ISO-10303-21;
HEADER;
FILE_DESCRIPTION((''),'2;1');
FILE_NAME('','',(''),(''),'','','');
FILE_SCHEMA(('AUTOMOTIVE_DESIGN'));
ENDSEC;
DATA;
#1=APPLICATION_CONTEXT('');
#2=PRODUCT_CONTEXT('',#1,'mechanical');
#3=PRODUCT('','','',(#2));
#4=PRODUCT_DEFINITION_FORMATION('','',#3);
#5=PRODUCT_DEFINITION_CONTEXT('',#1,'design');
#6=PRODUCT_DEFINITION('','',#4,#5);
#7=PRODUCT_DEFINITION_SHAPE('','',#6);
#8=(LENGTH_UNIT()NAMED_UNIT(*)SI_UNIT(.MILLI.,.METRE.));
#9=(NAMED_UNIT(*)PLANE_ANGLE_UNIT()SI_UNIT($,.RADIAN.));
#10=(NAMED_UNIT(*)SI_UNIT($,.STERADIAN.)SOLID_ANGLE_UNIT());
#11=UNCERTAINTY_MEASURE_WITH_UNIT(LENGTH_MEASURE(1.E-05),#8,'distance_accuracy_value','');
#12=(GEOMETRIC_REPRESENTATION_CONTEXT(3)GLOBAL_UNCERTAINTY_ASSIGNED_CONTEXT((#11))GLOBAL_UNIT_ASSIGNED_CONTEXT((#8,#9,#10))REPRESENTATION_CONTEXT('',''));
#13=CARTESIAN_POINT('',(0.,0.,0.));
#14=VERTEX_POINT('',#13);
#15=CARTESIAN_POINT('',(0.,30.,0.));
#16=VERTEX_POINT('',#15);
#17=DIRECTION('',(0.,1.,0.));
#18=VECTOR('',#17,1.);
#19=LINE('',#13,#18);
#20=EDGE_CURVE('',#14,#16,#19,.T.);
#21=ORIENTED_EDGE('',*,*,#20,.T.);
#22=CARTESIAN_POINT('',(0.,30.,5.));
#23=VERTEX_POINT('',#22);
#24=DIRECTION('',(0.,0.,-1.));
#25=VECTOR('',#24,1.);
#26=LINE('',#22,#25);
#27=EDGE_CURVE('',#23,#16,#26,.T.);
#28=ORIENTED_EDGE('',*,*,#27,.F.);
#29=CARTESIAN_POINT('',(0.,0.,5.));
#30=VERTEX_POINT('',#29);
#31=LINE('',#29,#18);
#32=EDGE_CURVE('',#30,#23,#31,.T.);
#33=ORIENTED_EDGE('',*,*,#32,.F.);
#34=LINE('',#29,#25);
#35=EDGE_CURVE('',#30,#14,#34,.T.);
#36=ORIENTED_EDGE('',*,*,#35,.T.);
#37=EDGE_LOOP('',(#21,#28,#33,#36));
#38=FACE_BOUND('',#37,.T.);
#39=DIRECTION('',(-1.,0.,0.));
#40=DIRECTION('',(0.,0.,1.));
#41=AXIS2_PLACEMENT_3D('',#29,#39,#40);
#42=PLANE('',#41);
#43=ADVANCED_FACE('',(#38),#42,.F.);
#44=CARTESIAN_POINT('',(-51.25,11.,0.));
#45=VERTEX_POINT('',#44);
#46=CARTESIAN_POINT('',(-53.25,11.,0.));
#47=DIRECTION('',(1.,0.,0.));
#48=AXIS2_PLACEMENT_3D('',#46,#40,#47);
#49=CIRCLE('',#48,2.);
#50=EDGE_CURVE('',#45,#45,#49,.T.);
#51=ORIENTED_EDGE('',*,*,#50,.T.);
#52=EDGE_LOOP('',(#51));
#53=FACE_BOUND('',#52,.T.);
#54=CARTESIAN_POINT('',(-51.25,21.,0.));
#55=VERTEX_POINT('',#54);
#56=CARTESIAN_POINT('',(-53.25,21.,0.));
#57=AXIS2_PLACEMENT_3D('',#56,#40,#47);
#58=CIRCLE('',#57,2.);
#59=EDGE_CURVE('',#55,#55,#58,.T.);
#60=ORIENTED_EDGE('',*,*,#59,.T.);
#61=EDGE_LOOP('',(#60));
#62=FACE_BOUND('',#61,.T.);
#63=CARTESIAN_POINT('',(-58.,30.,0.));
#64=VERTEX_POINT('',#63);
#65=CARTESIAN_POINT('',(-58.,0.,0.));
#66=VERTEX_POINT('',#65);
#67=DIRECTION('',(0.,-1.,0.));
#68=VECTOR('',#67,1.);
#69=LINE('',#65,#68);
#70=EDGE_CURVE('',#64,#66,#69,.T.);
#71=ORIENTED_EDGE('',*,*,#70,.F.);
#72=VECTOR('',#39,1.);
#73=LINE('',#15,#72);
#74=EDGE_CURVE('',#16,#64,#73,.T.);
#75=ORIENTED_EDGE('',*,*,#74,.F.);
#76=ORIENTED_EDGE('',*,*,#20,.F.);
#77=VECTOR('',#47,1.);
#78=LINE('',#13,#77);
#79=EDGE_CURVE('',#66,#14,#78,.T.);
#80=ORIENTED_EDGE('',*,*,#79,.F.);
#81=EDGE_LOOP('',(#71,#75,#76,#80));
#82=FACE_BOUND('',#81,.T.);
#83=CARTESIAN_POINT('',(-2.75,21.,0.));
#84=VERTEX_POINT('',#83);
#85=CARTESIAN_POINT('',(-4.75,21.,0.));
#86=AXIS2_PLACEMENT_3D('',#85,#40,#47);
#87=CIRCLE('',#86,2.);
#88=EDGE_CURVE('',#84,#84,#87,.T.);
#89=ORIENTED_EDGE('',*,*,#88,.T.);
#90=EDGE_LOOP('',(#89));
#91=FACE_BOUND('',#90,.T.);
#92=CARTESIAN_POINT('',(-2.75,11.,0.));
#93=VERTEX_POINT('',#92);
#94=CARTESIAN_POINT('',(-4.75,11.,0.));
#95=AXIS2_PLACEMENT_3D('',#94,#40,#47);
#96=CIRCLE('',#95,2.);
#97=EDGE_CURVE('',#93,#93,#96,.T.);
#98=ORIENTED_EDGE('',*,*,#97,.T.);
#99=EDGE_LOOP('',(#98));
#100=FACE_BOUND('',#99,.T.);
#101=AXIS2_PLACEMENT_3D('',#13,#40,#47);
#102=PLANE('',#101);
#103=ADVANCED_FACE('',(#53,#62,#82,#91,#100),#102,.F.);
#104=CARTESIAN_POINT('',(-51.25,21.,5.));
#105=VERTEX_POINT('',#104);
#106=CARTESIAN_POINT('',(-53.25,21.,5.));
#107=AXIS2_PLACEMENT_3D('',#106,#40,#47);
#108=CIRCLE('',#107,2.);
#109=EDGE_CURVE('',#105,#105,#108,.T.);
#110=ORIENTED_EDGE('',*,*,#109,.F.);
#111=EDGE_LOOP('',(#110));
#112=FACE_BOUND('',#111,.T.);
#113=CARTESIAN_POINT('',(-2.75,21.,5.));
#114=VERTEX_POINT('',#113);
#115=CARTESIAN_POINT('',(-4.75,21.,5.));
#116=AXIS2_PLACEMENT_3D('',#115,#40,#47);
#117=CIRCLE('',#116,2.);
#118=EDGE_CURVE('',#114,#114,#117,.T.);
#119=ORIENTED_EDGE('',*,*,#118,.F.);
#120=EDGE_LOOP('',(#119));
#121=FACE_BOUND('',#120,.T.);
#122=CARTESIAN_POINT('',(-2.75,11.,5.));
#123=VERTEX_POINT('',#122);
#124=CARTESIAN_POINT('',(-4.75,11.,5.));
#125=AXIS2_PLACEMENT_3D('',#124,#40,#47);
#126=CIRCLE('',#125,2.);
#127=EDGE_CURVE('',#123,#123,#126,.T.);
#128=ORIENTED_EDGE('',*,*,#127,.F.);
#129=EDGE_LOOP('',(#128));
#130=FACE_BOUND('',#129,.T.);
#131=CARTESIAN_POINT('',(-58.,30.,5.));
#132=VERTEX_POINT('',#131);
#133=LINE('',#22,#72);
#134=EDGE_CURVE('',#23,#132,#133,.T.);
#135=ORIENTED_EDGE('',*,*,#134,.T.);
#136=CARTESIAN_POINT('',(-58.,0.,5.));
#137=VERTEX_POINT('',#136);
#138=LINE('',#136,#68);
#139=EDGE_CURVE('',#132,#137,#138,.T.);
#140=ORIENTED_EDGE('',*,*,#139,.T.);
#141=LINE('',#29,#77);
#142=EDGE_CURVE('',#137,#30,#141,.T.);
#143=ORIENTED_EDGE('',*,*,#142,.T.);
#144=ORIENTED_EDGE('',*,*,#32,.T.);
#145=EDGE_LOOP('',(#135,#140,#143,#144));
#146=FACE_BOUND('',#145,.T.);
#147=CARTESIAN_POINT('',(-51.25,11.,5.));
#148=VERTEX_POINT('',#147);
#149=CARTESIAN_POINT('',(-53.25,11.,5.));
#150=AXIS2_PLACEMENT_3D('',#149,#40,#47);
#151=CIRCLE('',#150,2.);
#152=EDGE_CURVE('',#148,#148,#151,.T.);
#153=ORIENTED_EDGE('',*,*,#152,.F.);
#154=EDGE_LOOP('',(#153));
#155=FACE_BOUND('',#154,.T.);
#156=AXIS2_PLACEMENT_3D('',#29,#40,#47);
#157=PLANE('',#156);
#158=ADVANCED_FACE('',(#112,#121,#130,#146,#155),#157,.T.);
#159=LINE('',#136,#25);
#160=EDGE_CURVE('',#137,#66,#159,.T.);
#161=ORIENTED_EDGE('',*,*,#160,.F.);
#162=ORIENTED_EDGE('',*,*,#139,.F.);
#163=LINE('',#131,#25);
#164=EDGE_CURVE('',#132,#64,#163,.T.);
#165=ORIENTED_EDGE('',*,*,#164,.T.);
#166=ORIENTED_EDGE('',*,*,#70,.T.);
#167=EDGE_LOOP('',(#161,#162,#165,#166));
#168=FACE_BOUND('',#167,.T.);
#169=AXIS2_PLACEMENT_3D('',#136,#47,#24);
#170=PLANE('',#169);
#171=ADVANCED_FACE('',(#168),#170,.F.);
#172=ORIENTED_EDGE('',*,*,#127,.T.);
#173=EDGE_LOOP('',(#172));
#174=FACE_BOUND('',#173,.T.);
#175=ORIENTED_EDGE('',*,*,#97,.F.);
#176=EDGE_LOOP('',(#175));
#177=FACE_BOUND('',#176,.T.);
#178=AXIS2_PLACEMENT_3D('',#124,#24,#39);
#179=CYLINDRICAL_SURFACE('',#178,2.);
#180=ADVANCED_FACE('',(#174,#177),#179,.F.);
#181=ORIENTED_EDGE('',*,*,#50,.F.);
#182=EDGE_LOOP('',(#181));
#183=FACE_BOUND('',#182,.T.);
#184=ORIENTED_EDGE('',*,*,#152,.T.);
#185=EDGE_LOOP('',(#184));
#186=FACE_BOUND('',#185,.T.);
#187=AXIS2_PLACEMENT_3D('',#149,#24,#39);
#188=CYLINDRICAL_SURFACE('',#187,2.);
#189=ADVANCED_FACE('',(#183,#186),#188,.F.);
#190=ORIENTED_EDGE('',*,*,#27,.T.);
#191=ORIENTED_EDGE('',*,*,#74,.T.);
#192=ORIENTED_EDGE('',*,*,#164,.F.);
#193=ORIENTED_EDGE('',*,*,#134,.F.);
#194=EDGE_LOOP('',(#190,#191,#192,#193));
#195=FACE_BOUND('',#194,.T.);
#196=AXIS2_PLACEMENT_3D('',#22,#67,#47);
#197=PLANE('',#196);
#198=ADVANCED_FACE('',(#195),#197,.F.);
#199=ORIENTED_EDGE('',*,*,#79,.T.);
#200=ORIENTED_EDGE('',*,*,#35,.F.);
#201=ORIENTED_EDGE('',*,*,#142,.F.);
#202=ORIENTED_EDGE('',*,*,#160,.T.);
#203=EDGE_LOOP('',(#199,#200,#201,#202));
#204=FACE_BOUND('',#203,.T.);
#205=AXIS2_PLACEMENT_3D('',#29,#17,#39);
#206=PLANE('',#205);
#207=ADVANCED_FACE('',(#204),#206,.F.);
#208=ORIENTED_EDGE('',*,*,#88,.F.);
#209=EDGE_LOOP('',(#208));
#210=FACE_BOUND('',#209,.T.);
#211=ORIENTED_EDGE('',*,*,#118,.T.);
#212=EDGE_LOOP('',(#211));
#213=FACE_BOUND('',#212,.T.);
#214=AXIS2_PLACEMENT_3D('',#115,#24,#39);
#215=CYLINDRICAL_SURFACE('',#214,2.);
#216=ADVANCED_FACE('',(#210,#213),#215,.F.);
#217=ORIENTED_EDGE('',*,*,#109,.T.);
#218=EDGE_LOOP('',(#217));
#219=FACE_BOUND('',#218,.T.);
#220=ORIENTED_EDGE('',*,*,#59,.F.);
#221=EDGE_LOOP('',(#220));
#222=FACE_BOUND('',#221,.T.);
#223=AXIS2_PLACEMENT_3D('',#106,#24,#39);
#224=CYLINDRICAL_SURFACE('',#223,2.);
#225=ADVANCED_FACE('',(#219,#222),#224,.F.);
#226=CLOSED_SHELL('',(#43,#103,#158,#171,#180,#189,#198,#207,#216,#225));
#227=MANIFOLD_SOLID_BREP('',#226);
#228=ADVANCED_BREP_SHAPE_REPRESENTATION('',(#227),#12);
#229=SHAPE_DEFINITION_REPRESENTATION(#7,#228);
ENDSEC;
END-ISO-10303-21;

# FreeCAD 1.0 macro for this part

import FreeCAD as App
import Part
import Sketcher
from FreeCAD import Vector

doc = App.newDocument("Part")
body = doc.addObject("PartDesign::Body", "Body")

# Sketch on XY plane
sketch1 = doc.addObject("Sketcher::SketchObject", "Sketch")
body.addObject(sketch1)
sketch1.AttachmentSupport = (doc.XY_Plane, [""])
sketch1.MapMode = "FlatFace"
sketch1.addGeometry([
    Part.LineSegment(Vector(-58, 30, 0), Vector(-58, 0, 0)),  # 0
    Part.LineSegment(Vector(-58, 0, 0), Vector(0, 0, 0)),  # 1
    Part.LineSegment(Vector(0, 0, 0), Vector(0, 30, 0)),  # 2
    Part.LineSegment(Vector(0, 30, 0), Vector(-58, 30, 0)),  # 3
    Part.Circle(Vector(-53.2, 11, 0), Vector(0, 0, 1), 2),  # 4
    Part.Circle(Vector(-4.8, 11, 0), Vector(0, 0, 1), 2),  # 5
    Part.Circle(Vector(-53.2, 21, 0), Vector(0, 0, 1), 2),  # 6
    Part.Circle(Vector(-4.8, 21, 0), Vector(0, 0, 1), 2),  # 7
], False)
sketch1.addConstraint([
    Sketcher.Constraint("Coincident", 0, 2, 1, 1),
    Sketcher.Constraint("Coincident", 1, 2, 2, 1),
    Sketcher.Constraint("Coincident", 2, 2, 3, 1),
    Sketcher.Constraint("Coincident", 3, 2, 0, 1),
    Sketcher.Constraint("Vertical", 0),
    Sketcher.Constraint("Horizontal", 1),
    Sketcher.Constraint("Vertical", 2),
    Sketcher.Constraint("Horizontal", 3),
    Sketcher.Constraint("Coincident", 1, 2, -1, 1),
    Sketcher.Constraint("Equal", 4, 5),
    Sketcher.Constraint("Equal", 5, 6),
    Sketcher.Constraint("Equal", 6, 7),
    Sketcher.Constraint("Horizontal", 4, 3, 5, 3),
    Sketcher.Constraint("Horizontal", 6, 3, 7, 3),
    Sketcher.Constraint("Vertical", 4, 3, 6, 3),
    Sketcher.Constraint("Vertical", 5, 3, 7, 3),
    Sketcher.Constraint("Diameter", 4, 4.0),
    Sketcher.Constraint("DistanceX", 1, 1, 1, 2, 58.0),
    Sketcher.Constraint("DistanceY", 0, 2, 0, 1, 30.0),
    Sketcher.Constraint("DistanceY", -1, 1, 4, 3, 11.0),
    Sketcher.Constraint("DistanceY", -1, 1, 6, 3, 21.0),
    Sketcher.Constraint("DistanceX", 4, 3, 5, 3, 48.5),
    Sketcher.Constraint("DistanceX", 4, 3, -1, 1, 53.25),
])
pad1 = doc.addObject("PartDesign::Pad", "Pad")
body.addObject(pad1)
pad1.Profile = sketch1
pad1.Length = 5

doc.recompute()
